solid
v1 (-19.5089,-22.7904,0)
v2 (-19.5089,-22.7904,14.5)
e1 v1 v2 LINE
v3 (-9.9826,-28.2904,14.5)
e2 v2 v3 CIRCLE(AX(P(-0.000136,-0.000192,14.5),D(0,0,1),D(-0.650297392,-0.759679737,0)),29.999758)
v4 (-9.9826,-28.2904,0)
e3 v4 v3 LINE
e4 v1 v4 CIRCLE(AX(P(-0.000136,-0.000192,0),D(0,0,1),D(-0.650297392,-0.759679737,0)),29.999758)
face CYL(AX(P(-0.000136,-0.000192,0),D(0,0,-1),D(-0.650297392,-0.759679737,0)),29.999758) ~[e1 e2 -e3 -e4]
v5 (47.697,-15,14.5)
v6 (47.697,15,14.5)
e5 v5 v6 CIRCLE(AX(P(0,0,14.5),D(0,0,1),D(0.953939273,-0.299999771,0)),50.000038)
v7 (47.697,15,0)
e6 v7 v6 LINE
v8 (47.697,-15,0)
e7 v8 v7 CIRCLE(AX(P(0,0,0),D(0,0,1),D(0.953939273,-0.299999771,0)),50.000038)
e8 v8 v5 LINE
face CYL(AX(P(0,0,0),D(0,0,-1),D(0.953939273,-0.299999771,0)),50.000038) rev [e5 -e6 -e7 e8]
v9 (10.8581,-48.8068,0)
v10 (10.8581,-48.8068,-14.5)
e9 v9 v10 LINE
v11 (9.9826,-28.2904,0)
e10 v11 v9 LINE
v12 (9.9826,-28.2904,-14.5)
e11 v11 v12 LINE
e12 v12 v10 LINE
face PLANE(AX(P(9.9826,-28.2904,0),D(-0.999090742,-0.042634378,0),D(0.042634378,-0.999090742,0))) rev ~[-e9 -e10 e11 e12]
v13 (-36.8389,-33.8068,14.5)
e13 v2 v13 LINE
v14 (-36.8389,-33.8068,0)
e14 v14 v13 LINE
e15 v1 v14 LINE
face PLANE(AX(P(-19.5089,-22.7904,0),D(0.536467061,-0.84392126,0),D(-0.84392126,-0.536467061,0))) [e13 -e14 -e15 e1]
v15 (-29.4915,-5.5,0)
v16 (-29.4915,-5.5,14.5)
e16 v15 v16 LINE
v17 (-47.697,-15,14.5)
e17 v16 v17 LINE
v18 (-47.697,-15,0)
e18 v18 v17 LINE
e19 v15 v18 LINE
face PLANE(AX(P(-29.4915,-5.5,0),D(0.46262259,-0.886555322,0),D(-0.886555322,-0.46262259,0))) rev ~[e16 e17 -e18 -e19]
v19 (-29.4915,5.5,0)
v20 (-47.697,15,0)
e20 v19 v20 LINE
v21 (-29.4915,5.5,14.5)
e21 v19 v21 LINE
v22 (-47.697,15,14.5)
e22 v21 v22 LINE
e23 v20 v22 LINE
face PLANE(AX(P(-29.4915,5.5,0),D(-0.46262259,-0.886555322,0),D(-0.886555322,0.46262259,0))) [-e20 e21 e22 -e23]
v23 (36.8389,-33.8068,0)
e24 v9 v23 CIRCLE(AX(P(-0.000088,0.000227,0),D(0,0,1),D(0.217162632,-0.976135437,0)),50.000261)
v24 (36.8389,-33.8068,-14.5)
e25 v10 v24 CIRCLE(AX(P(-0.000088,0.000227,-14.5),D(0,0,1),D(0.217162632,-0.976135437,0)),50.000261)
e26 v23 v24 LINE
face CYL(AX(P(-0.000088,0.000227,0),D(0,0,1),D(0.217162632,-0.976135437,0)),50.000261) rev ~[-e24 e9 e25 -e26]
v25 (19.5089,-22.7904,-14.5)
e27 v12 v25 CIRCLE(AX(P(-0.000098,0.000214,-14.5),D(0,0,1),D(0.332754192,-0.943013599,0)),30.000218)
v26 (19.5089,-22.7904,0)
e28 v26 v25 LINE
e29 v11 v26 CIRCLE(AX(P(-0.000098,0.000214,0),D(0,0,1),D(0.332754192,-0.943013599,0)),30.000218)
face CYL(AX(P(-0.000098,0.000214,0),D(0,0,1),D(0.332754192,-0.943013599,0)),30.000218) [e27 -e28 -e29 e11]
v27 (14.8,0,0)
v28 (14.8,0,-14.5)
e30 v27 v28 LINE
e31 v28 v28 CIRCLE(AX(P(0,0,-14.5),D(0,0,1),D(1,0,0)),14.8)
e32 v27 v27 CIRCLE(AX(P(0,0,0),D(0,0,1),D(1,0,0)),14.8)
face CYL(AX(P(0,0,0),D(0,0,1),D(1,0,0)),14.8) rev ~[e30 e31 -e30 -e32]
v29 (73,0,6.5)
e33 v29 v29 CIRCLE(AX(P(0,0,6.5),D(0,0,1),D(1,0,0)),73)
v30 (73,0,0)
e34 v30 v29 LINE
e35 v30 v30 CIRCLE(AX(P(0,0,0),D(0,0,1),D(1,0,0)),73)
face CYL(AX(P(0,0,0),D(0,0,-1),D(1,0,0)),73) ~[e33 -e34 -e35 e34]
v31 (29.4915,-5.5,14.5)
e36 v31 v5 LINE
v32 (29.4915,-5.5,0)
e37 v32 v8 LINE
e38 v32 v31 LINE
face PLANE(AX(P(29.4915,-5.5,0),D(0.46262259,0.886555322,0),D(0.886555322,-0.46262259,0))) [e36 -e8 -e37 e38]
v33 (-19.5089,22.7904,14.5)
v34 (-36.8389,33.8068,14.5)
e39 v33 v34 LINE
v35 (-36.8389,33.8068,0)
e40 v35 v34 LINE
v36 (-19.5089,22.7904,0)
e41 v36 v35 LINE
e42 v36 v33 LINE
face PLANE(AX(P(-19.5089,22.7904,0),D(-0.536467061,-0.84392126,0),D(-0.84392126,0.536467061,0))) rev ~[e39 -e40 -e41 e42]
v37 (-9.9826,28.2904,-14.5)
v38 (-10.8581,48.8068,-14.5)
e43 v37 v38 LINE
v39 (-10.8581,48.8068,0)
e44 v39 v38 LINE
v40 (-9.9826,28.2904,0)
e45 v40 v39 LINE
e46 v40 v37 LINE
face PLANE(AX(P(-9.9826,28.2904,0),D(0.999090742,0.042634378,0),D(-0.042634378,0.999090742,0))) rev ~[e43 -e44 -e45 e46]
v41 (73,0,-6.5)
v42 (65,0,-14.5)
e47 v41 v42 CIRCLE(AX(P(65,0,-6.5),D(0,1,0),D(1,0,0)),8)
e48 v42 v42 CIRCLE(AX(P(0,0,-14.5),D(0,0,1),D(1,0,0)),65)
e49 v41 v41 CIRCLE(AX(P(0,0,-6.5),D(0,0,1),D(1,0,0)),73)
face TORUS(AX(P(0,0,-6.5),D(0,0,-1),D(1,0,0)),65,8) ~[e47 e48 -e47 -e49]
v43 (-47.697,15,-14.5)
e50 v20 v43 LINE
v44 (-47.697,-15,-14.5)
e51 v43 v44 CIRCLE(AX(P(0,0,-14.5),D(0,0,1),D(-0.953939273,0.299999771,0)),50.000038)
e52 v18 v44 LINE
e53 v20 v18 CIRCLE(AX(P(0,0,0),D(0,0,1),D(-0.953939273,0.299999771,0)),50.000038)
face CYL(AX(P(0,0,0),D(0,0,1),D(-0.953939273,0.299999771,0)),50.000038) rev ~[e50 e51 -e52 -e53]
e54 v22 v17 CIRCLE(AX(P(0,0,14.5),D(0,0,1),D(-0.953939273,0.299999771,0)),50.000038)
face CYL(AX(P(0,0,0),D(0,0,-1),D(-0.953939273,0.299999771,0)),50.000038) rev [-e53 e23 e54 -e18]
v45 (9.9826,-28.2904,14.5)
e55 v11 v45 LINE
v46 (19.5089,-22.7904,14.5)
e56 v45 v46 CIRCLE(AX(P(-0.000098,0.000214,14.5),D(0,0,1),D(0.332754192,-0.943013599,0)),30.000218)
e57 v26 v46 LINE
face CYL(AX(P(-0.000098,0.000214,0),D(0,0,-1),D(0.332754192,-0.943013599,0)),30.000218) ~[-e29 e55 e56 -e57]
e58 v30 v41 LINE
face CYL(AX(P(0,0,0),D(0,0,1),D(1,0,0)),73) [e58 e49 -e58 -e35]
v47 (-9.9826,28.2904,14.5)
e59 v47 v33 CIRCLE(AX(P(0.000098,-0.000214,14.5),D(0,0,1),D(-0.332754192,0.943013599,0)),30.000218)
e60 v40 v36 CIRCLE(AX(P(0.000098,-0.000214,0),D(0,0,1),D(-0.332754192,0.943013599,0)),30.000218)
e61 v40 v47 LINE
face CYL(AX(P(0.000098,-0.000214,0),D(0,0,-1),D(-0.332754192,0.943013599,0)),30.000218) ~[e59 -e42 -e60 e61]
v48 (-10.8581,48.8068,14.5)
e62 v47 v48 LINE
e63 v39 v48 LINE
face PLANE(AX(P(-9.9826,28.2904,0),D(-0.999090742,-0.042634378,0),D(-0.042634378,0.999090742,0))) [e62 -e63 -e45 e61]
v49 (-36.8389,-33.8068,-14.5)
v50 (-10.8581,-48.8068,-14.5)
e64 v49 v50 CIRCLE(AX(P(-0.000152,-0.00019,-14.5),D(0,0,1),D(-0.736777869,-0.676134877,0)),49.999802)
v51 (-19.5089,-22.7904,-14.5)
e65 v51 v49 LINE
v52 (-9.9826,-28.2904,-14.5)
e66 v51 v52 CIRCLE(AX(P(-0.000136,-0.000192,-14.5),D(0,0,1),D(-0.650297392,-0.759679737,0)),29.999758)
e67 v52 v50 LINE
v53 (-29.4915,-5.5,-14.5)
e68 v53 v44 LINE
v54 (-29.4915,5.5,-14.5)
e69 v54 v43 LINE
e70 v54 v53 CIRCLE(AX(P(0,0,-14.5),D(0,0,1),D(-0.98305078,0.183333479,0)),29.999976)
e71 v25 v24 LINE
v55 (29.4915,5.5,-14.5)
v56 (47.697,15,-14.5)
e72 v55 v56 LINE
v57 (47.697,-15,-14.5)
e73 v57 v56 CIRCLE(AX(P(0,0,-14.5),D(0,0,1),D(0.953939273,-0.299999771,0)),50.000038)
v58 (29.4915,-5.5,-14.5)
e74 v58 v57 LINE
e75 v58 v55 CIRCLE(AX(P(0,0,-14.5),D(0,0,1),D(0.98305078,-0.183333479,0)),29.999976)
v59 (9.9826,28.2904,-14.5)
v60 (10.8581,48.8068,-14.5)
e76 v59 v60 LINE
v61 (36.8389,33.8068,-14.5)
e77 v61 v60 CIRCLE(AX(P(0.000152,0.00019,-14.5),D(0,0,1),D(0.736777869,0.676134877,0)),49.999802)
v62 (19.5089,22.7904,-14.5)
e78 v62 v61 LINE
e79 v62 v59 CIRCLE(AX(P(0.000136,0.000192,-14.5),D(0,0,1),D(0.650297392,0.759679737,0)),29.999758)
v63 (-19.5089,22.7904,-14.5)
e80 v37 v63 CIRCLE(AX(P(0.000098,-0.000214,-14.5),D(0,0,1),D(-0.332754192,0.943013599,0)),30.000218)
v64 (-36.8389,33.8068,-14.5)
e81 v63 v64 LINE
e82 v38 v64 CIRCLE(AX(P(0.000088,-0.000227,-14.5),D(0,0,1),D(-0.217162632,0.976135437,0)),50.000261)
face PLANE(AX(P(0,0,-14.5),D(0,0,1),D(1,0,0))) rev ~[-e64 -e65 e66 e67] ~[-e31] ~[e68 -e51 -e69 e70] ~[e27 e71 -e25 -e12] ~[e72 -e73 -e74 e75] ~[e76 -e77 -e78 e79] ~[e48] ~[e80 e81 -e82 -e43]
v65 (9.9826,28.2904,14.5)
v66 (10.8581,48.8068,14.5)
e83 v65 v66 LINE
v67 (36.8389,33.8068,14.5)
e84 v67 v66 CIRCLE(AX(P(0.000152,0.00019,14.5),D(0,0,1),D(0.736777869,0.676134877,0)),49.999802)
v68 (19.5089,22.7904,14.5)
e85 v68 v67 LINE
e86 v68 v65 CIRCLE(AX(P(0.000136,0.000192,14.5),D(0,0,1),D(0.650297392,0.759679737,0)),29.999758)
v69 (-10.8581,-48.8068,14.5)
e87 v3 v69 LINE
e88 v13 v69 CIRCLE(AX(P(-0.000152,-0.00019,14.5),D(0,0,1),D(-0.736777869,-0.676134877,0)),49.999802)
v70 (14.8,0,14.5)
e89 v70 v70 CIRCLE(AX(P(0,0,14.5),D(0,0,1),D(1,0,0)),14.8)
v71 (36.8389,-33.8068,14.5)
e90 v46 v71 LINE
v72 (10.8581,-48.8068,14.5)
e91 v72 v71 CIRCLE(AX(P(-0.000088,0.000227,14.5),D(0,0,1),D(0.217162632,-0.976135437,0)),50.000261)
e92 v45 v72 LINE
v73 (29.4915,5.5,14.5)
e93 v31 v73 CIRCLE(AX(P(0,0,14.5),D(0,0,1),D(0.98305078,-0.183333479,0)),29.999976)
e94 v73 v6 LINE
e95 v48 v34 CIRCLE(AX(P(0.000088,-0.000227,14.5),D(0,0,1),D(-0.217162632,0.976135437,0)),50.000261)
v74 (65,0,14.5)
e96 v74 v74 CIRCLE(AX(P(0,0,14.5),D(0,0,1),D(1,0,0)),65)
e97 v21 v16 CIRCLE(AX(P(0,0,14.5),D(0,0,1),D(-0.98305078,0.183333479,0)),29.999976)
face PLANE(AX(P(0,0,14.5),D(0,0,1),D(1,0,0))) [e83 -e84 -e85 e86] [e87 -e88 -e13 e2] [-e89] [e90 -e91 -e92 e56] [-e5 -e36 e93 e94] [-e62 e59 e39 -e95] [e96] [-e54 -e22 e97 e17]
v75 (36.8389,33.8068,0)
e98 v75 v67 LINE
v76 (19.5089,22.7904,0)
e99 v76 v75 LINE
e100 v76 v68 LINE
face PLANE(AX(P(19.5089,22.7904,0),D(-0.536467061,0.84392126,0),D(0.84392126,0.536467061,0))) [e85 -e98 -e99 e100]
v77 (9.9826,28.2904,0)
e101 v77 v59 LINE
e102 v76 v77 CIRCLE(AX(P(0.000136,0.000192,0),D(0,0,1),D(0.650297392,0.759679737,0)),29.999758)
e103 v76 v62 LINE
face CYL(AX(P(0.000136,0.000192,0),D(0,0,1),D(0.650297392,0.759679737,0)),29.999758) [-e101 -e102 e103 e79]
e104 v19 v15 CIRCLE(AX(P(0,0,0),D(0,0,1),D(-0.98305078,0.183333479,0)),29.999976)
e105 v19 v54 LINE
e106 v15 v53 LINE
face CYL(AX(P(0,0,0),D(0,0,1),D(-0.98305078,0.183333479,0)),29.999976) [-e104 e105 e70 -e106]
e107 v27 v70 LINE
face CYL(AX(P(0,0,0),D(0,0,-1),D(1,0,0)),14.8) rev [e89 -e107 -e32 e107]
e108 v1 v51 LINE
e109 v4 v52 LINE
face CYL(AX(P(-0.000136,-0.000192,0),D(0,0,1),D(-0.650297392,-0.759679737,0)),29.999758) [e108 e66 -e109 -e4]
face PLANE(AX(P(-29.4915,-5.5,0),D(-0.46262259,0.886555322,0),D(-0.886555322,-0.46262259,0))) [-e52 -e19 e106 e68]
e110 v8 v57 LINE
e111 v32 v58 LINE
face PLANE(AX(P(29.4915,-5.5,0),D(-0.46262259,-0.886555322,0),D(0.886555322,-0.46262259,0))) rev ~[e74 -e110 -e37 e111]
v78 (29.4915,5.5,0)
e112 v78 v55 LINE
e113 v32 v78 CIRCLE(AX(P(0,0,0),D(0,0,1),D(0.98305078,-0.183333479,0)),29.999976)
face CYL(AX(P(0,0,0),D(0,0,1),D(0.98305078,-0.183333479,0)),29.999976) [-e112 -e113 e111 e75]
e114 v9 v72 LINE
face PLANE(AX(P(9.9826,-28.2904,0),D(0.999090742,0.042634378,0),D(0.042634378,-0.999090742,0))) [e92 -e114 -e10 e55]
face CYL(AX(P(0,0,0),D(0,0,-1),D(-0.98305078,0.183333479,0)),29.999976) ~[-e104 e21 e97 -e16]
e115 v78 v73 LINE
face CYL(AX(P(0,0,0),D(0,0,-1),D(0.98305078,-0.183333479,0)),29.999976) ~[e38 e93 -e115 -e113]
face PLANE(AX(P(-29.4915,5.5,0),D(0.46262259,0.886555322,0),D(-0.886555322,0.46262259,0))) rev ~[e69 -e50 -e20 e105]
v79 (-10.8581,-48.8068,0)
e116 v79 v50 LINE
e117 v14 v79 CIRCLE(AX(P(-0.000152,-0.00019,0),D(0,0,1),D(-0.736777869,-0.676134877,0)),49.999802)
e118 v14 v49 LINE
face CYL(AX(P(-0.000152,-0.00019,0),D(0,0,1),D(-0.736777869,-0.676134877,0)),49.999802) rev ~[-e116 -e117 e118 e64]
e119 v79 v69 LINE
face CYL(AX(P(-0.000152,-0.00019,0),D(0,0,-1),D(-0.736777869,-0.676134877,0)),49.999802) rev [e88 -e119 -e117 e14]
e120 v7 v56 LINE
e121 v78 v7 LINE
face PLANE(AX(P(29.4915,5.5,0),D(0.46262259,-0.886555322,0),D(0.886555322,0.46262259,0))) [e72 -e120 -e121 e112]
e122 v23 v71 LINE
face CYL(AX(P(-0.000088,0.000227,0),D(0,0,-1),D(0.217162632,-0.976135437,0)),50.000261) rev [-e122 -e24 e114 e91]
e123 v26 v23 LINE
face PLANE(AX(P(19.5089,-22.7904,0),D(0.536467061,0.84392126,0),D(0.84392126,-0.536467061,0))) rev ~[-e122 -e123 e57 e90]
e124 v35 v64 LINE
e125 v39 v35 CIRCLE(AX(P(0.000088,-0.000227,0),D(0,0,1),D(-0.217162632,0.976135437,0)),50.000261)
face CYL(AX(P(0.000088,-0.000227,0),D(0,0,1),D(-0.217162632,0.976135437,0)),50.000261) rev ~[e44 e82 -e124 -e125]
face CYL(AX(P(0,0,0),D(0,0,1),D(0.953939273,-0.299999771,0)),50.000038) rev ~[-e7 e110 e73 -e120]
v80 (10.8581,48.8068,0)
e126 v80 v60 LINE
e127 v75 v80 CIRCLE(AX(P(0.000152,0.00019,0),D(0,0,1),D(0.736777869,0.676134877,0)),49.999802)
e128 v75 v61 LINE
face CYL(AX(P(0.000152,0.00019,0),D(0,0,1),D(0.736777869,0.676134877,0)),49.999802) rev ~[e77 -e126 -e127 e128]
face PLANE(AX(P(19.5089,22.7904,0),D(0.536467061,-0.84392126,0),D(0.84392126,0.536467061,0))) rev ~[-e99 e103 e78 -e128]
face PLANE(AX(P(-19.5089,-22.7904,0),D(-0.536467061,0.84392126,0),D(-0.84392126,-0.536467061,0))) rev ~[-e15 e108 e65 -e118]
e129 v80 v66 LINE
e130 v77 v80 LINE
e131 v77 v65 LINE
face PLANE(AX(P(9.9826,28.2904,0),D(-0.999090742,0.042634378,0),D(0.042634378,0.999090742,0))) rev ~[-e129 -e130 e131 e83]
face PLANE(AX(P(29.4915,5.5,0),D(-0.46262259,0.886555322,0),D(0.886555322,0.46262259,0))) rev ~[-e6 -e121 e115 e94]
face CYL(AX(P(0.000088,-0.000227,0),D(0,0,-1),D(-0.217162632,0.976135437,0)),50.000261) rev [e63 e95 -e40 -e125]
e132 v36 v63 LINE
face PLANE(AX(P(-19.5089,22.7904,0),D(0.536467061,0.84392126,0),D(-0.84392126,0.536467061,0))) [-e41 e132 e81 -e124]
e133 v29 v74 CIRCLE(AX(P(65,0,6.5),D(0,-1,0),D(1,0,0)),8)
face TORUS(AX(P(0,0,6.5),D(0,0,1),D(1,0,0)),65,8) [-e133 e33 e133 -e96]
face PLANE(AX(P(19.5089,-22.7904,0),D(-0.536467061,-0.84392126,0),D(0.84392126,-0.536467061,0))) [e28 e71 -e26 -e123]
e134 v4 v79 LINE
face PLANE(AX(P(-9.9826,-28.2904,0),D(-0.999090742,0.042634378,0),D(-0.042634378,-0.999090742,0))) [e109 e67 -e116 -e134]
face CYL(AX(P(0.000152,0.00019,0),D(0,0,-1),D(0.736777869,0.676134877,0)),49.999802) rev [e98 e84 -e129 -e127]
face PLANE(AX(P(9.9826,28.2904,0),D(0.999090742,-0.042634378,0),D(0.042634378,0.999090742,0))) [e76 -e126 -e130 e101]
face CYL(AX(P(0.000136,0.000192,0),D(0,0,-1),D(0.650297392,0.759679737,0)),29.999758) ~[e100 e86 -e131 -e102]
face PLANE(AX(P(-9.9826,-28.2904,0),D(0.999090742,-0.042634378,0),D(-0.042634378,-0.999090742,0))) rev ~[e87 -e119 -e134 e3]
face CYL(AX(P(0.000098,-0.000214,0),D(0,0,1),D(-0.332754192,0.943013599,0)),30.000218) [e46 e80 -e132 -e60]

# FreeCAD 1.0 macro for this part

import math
import FreeCAD as App
import Part
import Sketcher
Q = App.Units.Quantity


def edges_at(feature, points):
    """Names of the edges that pass closest to the given points."""
    edges = feature.Shape.Edges
    near = lambda p: min(range(len(edges)), key=lambda i: edges[i].distToShape(Part.Vertex(*p))[0])
    return sorted({f"Edge{near(p) + 1}" for p in points})

doc = App.newDocument("Part")
body = doc.addObject("PartDesign::Body", "Body")

sketch1 = body.newObject("Sketcher::SketchObject", "Sketch")
sketch1.AttachmentSupport = (doc.getObject("XY_Plane"), [""])
sketch1.MapMode = "FlatFace"
sketch1.addGeometry([
    Part.Circle(App.Vector(0, 0, 0), App.Vector(0, 0, 1), 73),
    Part.ArcOfCircle(Part.Circle(App.Vector(0, 0, 0), App.Vector(0, 0, 1), 50), math.radians(-137), math.radians(-103)),
    Part.LineSegment(App.Vector(-37, -34, 0), App.Vector(-20, -23, 0)),
    Part.ArcOfCircle(Part.Circle(App.Vector(0, 0, 0), App.Vector(0, 0, 1), 30), math.radians(-131), math.radians(-109)),
    Part.LineSegment(App.Vector(-10, -28, 0), App.Vector(-11, -49, 0)),
    Part.ArcOfCircle(Part.Circle(App.Vector(0, 0, 0), App.Vector(0, 0, 1), 50), math.radians(-77), math.radians(-43)),
    Part.LineSegment(App.Vector(11, -49, 0), App.Vector(10, -28, 0)),
    Part.ArcOfCircle(Part.Circle(App.Vector(0, 0, 0), App.Vector(0, 0, 1), 30), math.radians(-71), math.radians(-49)),
    Part.LineSegment(App.Vector(20, -23, 0), App.Vector(37, -34, 0)),
    Part.ArcOfCircle(Part.Circle(App.Vector(0, 0, 0), App.Vector(0, 0, 1), 50), math.radians(163), math.radians(197)),
    Part.LineSegment(App.Vector(-48, 15, 0), App.Vector(-29, 6, 0)),
    Part.ArcOfCircle(Part.Circle(App.Vector(0, 0, 0), App.Vector(0, 0, 1), 30), math.radians(169), math.radians(191)),
    Part.LineSegment(App.Vector(-29, -6, 0), App.Vector(-48, -15, 0)),
    Part.ArcOfCircle(Part.Circle(App.Vector(0, 0, 0), App.Vector(0, 0, 1), 50), math.radians(103), math.radians(137)),
    Part.LineSegment(App.Vector(-11, 49, 0), App.Vector(-10, 28, 0)),
    Part.ArcOfCircle(Part.Circle(App.Vector(0, 0, 0), App.Vector(0, 0, 1), 30), math.radians(109), math.radians(131)),
    Part.LineSegment(App.Vector(-20, 23, 0), App.Vector(-37, 34, 0)),
    Part.Circle(App.Vector(0, 0, 0), App.Vector(0, 0, 1), 15),
    Part.ArcOfCircle(Part.Circle(App.Vector(0, 0, 0), App.Vector(0, 0, 1), 50), math.radians(43), math.radians(77)),
    Part.LineSegment(App.Vector(37, 34, 0), App.Vector(20, 23, 0)),
    Part.ArcOfCircle(Part.Circle(App.Vector(0, 0, 0), App.Vector(0, 0, 1), 30), math.radians(49), math.radians(71)),
    Part.LineSegment(App.Vector(10, 28, 0), App.Vector(11, 49, 0)),
    Part.ArcOfCircle(Part.Circle(App.Vector(0, 0, 0), App.Vector(0, 0, 1), 50), math.radians(-17), math.radians(17)),
    Part.LineSegment(App.Vector(48, -15, 0), App.Vector(29, -6, 0)),
    Part.ArcOfCircle(Part.Circle(App.Vector(0, 0, 0), App.Vector(0, 0, 1), 30), math.radians(-11), math.radians(11)),
    Part.LineSegment(App.Vector(29, 6, 0), App.Vector(48, 15, 0)),
], False)
sketch1.addConstraint([
    Sketcher.Constraint("Coincident", 1, 1, 2, 1),
    Sketcher.Constraint("Coincident", 2, 2, 3, 1),
    Sketcher.Constraint("Coincident", 3, 2, 4, 1),
    Sketcher.Constraint("Coincident", 4, 2, 1, 2),
    Sketcher.Constraint("Coincident", 5, 1, 6, 1),
    Sketcher.Constraint("Coincident", 6, 2, 7, 1),
    Sketcher.Constraint("Coincident", 7, 2, 8, 1),
    Sketcher.Constraint("Coincident", 8, 2, 5, 2),
    Sketcher.Constraint("Coincident", 9, 1, 10, 1),
    Sketcher.Constraint("Coincident", 10, 2, 11, 1),
    Sketcher.Constraint("Coincident", 11, 2, 12, 1),
    Sketcher.Constraint("Coincident", 12, 2, 9, 2),
    Sketcher.Constraint("Coincident", 13, 1, 14, 1),
    Sketcher.Constraint("Coincident", 14, 2, 15, 1),
    Sketcher.Constraint("Coincident", 15, 2, 16, 1),
    Sketcher.Constraint("Coincident", 16, 2, 13, 2),
    Sketcher.Constraint("Coincident", 18, 1, 19, 1),
    Sketcher.Constraint("Coincident", 19, 2, 20, 1),
    Sketcher.Constraint("Coincident", 20, 2, 21, 1),
    Sketcher.Constraint("Coincident", 21, 2, 18, 2),
    Sketcher.Constraint("Coincident", 22, 1, 23, 1),
    Sketcher.Constraint("Coincident", 23, 2, 24, 1),
    Sketcher.Constraint("Coincident", 24, 2, 25, 1),
    Sketcher.Constraint("Coincident", 25, 2, 22, 2),
    Sketcher.Constraint("Coincident", 0, 3, -1, 1),
    Sketcher.Constraint("Coincident", 1, 3, -1, 1),
    Sketcher.Constraint("Coincident", 3, 3, -1, 1),
    Sketcher.Constraint("Coincident", 5, 3, -1, 1),
    Sketcher.Constraint("Coincident", 7, 3, -1, 1),
    Sketcher.Constraint("Coincident", 9, 3, -1, 1),
    Sketcher.Constraint("Coincident", 11, 3, -1, 1),
    Sketcher.Constraint("Coincident", 13, 3, -1, 1),
    Sketcher.Constraint("Coincident", 15, 3, -1, 1),
    Sketcher.Constraint("Coincident", 17, 3, -1, 1),
    Sketcher.Constraint("Coincident", 18, 3, -1, 1),
    Sketcher.Constraint("Coincident", 20, 3, -1, 1),
    Sketcher.Constraint("Coincident", 22, 3, -1, 1),
    Sketcher.Constraint("Coincident", 24, 3, -1, 1),
    Sketcher.Constraint("Equal", 1, 5),
    Sketcher.Constraint("Equal", 3, 7),
    Sketcher.Constraint("Equal", 5, 9),
    Sketcher.Constraint("Equal", 7, 11),
    Sketcher.Constraint("Equal", 9, 13),
    Sketcher.Constraint("Equal", 11, 15),
    Sketcher.Constraint("Equal", 13, 18),
    Sketcher.Constraint("Equal", 15, 20),
    Sketcher.Constraint("Equal", 18, 22),
    Sketcher.Constraint("Equal", 20, 24),
    Sketcher.Constraint("Parallel", 6, 14),
    Sketcher.Constraint("Parallel", 8, 16),
    Sketcher.Constraint("Parallel", 2, 19),
    Sketcher.Constraint("Parallel", 4, 21),
    Sketcher.Constraint("Parallel", 10, 23),
    Sketcher.Constraint("Parallel", 12, 25),
    Sketcher.Constraint("Horizontal", 4, 2, 5, 1),
    Sketcher.Constraint("Horizontal", 3, 2, 6, 2),
    Sketcher.Constraint("Horizontal", 2, 2, 7, 2),
    Sketcher.Constraint("Horizontal", 1, 1, 8, 2),
    Sketcher.Constraint("Horizontal", 16, 2, 18, 1),
    Sketcher.Constraint("Horizontal", 14, 2, 20, 2),
    Sketcher.Constraint("Horizontal", 12, 2, 22, 1),
    Sketcher.Constraint("Horizontal", 11, 2, 23, 2),
    Sketcher.Constraint("Horizontal", 10, 2, 24, 2),
    Sketcher.Constraint("Vertical", 10, 2, 11, 2),
    Sketcher.Constraint("Vertical", 4, 2, 13, 1),
    Sketcher.Constraint("Vertical", 2, 2, 15, 2),
    Sketcher.Constraint("Equal", 2, 4),
    Sketcher.Constraint("Equal", 8, 10),
    Sketcher.Constraint("Diameter", 0, Q("146 mm")),
    Sketcher.Constraint("Radius", 1, Q("50 mm")),
    Sketcher.Constraint("Radius", 3, Q("30 mm")),
    Sketcher.Constraint("Diameter", 17, Q("29.6 mm")),
    Sketcher.Constraint("DistanceY", 11, 2, 10, 2, Q("11 mm")),
    Sketcher.Constraint("DistanceY", 12, 2, 9, 1, Q("30 mm")),
    Sketcher.Constraint("DistanceY", 4, 2, 1, 1, Q("15 mm")),
    Sketcher.Constraint("DistanceY", 3, 2, 2, 2, Q("5.5 mm")),
])
pad1 = body.newObject("PartDesign::Pad", "Pad")
pad1.Profile = sketch1
pad1.Length = 29
pad1.Midplane = True
doc.recompute()

fillet = body.newObject("PartDesign::Fillet", "Fillet")
fillet.Base = (pad1, edges_at(pad1, [(-73, 0, 14.5), (-73, 0, -14.5)]))
fillet.Radius = 8

doc.recompute()
